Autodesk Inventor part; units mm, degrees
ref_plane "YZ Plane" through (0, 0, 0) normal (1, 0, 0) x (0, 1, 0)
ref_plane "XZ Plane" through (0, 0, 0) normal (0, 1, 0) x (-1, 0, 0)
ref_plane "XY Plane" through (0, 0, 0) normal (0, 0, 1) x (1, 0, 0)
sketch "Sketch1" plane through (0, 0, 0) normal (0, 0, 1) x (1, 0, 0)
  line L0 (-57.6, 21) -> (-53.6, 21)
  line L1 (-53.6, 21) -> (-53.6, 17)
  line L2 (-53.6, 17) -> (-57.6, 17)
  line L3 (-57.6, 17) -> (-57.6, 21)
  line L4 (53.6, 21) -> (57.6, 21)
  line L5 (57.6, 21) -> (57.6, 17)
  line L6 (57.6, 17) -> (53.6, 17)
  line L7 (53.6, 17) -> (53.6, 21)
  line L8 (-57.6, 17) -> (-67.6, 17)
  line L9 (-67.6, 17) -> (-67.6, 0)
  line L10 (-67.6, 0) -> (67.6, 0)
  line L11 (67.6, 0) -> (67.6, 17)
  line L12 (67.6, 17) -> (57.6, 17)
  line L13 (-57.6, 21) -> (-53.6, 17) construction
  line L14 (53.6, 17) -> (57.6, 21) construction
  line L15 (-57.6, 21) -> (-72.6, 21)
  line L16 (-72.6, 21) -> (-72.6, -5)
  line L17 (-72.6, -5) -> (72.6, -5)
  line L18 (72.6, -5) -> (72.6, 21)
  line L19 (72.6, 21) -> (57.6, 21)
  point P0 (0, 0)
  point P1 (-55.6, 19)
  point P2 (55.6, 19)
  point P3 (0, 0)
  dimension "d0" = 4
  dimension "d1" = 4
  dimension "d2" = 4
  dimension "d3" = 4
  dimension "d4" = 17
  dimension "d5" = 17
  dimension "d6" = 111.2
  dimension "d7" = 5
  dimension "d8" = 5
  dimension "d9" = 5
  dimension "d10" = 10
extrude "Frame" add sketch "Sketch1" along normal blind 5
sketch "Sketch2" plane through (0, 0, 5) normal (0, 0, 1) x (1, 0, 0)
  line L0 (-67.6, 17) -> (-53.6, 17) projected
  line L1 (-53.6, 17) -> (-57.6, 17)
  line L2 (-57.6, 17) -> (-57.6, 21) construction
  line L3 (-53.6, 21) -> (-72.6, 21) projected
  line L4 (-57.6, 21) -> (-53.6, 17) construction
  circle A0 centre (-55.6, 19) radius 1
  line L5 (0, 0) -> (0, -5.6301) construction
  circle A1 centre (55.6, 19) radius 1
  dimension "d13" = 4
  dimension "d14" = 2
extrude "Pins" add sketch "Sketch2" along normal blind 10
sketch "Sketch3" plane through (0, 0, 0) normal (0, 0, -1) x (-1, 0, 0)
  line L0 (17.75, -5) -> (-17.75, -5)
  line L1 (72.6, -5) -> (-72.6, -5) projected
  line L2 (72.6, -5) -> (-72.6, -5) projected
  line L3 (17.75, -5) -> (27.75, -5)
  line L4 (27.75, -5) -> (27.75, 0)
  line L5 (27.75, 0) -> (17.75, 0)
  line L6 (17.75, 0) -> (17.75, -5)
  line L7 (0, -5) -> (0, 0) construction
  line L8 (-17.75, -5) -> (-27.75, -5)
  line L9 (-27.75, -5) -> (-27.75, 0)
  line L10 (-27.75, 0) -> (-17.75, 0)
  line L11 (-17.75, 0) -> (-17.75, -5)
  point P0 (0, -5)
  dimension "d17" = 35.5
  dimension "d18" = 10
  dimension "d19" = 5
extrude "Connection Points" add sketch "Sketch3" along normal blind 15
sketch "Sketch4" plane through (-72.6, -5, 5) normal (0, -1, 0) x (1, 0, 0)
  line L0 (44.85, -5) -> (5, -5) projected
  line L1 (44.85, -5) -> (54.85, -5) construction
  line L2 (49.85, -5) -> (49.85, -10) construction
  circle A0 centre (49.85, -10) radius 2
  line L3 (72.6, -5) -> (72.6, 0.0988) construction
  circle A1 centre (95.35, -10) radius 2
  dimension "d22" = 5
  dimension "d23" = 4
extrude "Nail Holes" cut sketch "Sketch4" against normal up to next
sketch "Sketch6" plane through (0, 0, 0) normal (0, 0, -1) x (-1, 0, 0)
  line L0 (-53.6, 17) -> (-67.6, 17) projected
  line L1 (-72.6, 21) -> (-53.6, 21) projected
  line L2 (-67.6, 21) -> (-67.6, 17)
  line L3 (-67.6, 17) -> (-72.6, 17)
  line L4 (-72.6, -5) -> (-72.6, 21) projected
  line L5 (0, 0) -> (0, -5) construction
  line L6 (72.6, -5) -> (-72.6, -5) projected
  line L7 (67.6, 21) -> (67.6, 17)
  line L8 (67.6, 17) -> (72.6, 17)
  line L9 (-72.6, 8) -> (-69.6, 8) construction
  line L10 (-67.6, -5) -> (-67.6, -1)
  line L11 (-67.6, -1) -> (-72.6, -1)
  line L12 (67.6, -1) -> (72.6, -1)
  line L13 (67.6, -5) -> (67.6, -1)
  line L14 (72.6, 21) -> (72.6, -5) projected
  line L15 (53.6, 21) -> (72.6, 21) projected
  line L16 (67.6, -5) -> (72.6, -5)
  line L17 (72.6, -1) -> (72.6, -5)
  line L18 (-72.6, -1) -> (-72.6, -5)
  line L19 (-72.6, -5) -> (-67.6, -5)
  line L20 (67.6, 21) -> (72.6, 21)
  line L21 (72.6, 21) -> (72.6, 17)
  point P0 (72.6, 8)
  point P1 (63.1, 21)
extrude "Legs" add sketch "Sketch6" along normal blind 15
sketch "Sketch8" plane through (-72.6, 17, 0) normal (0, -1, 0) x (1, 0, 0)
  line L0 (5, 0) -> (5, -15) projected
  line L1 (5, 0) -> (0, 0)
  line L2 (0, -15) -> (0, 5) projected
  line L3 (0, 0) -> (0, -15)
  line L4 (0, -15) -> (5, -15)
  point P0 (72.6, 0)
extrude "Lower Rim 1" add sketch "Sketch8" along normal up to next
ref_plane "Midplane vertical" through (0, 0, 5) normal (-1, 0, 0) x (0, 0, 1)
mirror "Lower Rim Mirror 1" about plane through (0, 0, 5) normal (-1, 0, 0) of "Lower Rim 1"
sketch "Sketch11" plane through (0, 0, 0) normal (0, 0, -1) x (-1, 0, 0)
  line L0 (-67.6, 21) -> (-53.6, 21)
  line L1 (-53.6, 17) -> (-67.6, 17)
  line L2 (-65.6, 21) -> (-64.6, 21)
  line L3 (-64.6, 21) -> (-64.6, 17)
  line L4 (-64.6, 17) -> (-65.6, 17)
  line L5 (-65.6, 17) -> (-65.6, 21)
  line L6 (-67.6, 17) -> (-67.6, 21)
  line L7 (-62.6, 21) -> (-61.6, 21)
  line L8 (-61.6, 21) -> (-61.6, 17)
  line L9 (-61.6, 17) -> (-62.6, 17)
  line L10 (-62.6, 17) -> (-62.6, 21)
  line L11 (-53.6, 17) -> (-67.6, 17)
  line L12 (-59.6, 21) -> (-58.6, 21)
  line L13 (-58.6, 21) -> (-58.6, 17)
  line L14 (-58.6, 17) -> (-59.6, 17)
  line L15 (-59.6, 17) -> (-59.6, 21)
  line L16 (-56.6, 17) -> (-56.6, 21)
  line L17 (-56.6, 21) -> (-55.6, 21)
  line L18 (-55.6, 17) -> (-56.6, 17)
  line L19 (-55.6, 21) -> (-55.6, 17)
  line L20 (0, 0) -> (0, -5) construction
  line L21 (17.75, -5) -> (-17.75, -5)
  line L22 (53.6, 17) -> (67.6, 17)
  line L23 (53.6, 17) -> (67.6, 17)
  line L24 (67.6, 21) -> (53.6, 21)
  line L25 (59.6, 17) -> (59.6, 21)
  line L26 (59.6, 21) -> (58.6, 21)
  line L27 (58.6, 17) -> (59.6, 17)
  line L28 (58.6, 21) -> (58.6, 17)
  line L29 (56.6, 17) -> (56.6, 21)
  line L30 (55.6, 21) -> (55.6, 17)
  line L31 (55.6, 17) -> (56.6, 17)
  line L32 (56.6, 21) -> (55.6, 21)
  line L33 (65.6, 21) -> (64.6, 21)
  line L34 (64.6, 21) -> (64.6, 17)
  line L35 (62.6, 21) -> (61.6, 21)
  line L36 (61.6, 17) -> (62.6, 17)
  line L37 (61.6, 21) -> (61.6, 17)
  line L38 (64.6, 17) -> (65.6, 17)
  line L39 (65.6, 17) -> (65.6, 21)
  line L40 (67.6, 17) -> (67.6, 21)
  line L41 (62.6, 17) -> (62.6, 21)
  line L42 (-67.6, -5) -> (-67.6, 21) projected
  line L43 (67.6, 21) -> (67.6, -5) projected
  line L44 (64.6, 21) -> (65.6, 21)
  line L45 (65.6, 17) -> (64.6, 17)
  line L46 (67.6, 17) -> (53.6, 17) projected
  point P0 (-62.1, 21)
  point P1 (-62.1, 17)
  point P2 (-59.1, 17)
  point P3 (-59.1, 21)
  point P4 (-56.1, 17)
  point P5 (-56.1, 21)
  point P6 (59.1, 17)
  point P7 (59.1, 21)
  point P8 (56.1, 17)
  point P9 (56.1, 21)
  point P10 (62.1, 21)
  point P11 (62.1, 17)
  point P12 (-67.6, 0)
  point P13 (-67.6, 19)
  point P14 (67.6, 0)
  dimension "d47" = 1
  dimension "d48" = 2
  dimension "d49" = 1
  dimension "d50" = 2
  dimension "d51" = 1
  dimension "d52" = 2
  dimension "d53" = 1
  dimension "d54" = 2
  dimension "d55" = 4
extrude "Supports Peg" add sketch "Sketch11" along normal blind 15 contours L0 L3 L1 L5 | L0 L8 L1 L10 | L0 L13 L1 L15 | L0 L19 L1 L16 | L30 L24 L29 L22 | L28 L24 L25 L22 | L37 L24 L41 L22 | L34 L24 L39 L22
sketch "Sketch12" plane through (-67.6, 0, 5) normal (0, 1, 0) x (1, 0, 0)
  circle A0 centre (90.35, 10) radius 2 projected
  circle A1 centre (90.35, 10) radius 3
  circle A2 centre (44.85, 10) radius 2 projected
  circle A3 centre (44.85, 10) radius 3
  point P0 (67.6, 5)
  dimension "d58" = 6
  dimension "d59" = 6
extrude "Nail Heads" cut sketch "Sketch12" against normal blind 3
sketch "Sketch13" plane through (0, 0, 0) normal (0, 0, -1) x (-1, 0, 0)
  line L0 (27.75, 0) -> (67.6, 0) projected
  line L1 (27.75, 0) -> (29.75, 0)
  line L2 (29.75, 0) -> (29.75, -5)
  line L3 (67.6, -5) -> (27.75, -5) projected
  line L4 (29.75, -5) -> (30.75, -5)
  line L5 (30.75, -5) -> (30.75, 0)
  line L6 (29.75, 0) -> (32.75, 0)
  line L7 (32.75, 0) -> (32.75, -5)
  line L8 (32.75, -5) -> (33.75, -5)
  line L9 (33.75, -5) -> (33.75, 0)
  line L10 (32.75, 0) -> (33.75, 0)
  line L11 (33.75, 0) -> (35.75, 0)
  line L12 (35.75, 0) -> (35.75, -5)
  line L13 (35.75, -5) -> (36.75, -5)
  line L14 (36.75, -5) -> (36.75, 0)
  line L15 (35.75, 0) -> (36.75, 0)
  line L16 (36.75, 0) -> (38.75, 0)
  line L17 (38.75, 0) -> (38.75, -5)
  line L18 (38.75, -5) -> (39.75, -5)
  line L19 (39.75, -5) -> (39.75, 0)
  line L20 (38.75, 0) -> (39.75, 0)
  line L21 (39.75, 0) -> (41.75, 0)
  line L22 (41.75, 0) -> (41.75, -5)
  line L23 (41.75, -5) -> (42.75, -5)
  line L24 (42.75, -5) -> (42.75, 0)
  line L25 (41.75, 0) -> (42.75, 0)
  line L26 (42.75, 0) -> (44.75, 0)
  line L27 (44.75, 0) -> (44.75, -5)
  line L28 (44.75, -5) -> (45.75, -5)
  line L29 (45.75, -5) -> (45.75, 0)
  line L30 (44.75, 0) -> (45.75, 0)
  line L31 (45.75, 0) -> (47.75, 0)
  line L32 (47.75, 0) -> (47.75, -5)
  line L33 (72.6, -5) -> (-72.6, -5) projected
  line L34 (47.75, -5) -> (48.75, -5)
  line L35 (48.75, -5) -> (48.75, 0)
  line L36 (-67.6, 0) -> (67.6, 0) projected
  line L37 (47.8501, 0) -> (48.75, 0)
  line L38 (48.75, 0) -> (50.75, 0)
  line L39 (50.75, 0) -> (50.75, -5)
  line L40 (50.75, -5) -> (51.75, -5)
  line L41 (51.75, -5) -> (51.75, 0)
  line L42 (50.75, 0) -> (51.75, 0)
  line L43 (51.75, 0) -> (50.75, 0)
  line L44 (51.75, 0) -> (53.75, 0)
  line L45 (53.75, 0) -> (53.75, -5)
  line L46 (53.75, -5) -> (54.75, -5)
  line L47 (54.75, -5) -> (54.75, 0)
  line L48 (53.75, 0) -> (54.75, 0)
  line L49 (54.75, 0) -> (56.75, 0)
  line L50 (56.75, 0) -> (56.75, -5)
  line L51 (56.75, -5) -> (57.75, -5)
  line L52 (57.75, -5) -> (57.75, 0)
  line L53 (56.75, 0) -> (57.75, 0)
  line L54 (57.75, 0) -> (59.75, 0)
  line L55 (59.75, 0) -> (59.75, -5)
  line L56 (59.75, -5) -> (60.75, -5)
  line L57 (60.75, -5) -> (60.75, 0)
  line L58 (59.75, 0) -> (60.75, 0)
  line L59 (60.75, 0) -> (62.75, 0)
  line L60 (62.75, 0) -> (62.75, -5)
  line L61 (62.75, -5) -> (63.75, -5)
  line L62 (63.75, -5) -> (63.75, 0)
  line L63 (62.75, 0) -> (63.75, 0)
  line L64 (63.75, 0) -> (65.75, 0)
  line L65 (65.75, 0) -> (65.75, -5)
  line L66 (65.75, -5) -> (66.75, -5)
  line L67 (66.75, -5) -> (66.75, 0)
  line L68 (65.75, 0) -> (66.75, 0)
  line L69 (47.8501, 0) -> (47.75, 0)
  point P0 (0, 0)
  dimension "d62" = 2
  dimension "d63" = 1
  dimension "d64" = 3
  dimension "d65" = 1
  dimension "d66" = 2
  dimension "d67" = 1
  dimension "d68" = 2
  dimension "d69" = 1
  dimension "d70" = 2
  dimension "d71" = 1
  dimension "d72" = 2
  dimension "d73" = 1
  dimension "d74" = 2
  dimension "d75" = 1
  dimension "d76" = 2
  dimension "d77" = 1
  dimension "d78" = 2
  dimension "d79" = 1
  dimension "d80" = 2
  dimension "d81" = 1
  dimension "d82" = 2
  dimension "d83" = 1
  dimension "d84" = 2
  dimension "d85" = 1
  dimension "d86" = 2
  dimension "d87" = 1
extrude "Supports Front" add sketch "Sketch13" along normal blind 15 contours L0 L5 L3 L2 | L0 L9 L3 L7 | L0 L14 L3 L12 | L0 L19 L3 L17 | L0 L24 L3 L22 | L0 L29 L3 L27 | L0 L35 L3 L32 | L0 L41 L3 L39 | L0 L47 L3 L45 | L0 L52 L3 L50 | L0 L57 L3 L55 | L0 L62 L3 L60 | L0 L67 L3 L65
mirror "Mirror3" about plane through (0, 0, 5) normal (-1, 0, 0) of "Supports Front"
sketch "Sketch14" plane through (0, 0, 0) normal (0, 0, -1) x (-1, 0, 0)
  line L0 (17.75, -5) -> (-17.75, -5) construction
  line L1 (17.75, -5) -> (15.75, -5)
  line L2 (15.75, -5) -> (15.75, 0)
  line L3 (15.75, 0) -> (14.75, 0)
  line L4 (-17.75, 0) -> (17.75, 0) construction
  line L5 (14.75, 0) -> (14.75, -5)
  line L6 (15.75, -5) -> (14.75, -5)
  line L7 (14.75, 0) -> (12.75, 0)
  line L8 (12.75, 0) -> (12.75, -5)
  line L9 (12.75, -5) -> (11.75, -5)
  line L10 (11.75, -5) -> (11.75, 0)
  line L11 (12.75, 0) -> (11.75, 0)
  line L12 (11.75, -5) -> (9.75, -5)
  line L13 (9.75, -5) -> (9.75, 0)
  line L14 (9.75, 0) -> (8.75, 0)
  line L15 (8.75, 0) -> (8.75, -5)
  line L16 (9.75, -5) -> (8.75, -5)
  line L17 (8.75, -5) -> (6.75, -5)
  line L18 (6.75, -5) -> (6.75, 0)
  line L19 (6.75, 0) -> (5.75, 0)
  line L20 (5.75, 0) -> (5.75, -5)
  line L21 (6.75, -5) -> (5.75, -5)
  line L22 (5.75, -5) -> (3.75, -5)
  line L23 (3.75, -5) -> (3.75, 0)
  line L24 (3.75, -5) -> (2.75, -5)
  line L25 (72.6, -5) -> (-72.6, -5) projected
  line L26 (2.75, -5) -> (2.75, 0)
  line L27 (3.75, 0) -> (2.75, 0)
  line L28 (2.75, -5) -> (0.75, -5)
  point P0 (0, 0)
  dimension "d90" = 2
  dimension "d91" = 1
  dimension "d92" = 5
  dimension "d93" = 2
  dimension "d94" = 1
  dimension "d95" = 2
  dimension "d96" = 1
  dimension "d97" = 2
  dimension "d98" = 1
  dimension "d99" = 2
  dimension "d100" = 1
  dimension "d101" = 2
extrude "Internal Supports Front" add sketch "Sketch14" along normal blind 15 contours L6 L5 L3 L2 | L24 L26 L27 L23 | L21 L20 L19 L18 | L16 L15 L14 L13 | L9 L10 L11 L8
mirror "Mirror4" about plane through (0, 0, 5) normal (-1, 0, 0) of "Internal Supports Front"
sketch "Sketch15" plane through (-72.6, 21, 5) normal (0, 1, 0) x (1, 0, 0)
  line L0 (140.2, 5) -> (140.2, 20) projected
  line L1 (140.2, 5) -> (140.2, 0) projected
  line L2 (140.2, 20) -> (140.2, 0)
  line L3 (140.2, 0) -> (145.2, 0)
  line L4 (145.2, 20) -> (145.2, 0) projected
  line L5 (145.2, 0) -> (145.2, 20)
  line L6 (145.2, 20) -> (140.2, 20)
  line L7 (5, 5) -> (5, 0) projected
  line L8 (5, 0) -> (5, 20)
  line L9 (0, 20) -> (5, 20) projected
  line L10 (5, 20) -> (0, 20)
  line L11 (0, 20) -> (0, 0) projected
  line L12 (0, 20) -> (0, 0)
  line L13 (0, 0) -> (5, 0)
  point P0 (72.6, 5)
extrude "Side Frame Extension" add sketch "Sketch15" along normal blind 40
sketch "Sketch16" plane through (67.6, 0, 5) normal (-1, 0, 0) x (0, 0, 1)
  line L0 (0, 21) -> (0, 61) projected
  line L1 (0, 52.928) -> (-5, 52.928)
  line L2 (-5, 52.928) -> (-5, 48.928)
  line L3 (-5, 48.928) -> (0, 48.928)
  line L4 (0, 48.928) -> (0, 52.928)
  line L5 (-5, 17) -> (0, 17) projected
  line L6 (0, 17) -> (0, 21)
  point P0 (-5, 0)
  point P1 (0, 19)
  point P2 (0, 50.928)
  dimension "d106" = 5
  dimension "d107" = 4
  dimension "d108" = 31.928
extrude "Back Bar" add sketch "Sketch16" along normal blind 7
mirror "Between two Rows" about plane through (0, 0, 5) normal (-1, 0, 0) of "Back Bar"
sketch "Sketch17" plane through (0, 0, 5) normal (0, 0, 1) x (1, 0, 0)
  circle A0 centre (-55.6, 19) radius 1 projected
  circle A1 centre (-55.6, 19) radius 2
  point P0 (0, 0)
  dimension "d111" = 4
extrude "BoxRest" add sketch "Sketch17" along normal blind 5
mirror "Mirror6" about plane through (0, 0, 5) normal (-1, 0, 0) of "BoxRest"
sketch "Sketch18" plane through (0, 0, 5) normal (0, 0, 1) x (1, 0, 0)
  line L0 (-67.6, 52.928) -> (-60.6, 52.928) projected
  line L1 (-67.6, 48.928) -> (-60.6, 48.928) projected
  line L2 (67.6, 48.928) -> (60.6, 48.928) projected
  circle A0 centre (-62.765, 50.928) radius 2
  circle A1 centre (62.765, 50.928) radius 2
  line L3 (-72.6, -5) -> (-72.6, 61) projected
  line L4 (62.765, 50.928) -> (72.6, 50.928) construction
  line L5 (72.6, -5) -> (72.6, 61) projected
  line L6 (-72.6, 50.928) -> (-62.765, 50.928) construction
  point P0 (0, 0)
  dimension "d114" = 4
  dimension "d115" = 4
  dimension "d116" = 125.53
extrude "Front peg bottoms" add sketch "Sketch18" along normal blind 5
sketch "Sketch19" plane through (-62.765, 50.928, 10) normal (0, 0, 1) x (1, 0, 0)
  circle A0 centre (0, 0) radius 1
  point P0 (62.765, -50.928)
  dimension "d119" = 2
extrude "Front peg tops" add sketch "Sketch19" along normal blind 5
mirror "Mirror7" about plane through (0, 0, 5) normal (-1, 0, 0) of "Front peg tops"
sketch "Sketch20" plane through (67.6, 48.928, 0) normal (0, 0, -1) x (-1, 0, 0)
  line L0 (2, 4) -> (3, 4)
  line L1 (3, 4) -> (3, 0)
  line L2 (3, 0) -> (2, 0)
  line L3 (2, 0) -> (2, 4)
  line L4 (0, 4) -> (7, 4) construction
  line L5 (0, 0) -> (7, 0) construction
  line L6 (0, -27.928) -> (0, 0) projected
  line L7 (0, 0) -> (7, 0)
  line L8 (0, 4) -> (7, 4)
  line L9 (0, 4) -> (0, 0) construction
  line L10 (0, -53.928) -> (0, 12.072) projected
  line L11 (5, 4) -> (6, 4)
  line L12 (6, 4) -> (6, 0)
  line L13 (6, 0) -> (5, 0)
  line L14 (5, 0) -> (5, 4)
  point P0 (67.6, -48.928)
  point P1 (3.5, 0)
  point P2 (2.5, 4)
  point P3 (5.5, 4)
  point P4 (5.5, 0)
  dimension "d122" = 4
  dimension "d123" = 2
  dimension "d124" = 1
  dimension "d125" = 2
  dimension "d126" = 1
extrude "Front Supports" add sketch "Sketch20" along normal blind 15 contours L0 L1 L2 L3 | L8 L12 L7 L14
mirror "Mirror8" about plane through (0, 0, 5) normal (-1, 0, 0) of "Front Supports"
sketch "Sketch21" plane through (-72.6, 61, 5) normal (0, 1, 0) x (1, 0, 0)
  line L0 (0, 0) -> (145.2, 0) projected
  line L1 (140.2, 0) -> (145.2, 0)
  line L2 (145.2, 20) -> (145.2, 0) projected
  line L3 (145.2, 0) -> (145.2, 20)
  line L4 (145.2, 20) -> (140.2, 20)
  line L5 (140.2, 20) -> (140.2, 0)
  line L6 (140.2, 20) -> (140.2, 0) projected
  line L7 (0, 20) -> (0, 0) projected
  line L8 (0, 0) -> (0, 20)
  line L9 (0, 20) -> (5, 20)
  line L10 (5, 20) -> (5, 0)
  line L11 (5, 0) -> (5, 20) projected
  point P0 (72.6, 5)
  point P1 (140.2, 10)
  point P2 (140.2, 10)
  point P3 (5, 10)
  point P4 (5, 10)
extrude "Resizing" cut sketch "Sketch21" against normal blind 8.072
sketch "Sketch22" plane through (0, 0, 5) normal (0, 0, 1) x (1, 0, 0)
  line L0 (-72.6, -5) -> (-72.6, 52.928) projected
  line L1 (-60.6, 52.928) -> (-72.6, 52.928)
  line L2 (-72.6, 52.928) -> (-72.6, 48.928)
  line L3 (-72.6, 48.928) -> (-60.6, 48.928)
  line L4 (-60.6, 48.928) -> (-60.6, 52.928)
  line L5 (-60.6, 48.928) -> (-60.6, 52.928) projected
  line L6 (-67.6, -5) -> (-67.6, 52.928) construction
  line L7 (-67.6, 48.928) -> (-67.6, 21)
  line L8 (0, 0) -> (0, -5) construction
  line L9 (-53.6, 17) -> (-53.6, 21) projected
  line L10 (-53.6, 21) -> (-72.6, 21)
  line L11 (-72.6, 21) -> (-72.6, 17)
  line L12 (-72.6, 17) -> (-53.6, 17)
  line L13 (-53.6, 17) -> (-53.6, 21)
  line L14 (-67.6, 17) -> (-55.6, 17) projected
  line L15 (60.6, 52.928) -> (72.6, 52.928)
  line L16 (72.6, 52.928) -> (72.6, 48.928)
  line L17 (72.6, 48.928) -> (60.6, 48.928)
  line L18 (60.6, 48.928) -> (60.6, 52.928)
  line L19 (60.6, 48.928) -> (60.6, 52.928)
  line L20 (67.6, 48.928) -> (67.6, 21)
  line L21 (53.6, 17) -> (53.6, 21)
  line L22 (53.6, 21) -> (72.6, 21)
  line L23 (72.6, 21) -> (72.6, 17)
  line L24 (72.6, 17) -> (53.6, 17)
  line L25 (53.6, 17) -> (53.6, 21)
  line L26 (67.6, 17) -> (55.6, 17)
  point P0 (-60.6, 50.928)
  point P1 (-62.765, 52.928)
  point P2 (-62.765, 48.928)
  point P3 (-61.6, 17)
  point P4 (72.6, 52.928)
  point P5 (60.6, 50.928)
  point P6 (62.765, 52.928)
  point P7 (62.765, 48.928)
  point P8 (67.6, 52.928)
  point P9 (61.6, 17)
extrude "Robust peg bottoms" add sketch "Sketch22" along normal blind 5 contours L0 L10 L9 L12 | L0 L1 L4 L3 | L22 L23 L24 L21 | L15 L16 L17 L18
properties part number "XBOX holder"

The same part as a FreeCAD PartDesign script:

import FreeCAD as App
import Part
import Sketcher

V = App.Vector


def add_polygon(sketch, points):
    """Adds a closed chain of lines whose ends are joined by coincident constraints."""
    first, n = sketch.GeometryCount, len(points)
    for a, b in zip(points, points[1:] + points[:1]):
        sketch.addGeometry(Part.LineSegment(App.Vector(*a, 0), App.Vector(*b, 0)), False)
    for i in range(n):
        sketch.addConstraint(Sketcher.Constraint("Coincident", first + i, 2, first + (i + 1) % n, 1))

doc = App.newDocument("Part")
body = doc.addObject("PartDesign::Body", "Body")

sketch1 = doc.addObject("Sketcher::SketchObject", "Sketch")
body.addObject(sketch1)
sketch1.AttachmentSupport = (doc.XY_Plane, [""])
sketch1.MapMode = "FlatFace"
add_polygon(sketch1, [(-53.6, 21), (-72.6, 21), (-72.6, -5), (72.6, -5), (72.6, 21), (53.6, 21), (53.6, 17), (67.6, 17), (67.6, 0), (-67.6, 0), (-67.6, 17), (-53.6, 17)])
sketch1.addConstraint([
    Sketcher.Constraint("Horizontal", 0),
    Sketcher.Constraint("Vertical", 1),
    Sketcher.Constraint("Horizontal", 2),
    Sketcher.Constraint("Vertical", 3),
    Sketcher.Constraint("Horizontal", 4),
    Sketcher.Constraint("Vertical", 5),
    Sketcher.Constraint("Horizontal", 6),
    Sketcher.Constraint("Vertical", 7),
    Sketcher.Constraint("Horizontal", 8),
    Sketcher.Constraint("Vertical", 9),
    Sketcher.Constraint("Horizontal", 10),
    Sketcher.Constraint("Vertical", 11),
    Sketcher.Constraint("Symmetric", 7, 2, 8, 2, -1, 1),
    Sketcher.Constraint("Symmetric", 0, 2, 3, 2, -2),
    Sketcher.Constraint("Symmetric", 5, 2, 10, 2, -2),
    Sketcher.Constraint("DistanceY", 5, 2, 5, 1, 4.0),
    Sketcher.Constraint("DistanceY", 7, 2, 7, 1, 17.0),
    Sketcher.Constraint("DistanceY", 1, 2, -1, 1, 5.0),
    Sketcher.Constraint("DistanceX", 6, 2, 3, 2, 5.0),
    Sketcher.Constraint("DistanceX", 0, 2, 0, 1, 19.0),
    Sketcher.Constraint("DistanceX", 2, 1, 2, 2, 145.2),
])
pad1 = doc.addObject("PartDesign::Pad", "Pad")
body.addObject(pad1)
pad1.Profile = sketch1
pad1.Length = 5

sketch2 = doc.addObject("Sketcher::SketchObject", "Sketch001")
body.addObject(sketch2)
sketch2.AttachmentSupport = (doc.XY_Plane, [""])
sketch2.MapMode = "FlatFace"
sketch2.AttachmentOffset = App.Placement(V(0, 0, 5), App.Rotation())
sketch2.addGeometry([
    Part.Circle(V(-55.6, 19, 0), V(0, 0, 1), 1),
    Part.Circle(V(55.6, 19, 0), V(0, 0, 1), 1),
], False)
sketch2.addConstraint([
    Sketcher.Constraint("Equal", 0, 1),
    Sketcher.Constraint("Symmetric", 0, 3, 1, 3, -2),
    Sketcher.Constraint("Diameter", 0, 2.0),
    Sketcher.Constraint("DistanceY", -1, 1, 0, 3, 19.0),
    Sketcher.Constraint("DistanceX", 0, 3, -1, 1, 55.6),
])
pad2 = doc.addObject("PartDesign::Pad", "Pad001")
body.addObject(pad2)
pad2.Profile = sketch2
pad2.Length = 10

sketch3 = doc.addObject("Sketcher::SketchObject", "Sketch002")
body.addObject(sketch3)
sketch3.AttachmentSupport = (doc.XY_Plane, [""])
sketch3.MapMode = "FlatFace"
add_polygon(sketch3, [(28, -5), (18, -5), (18, 0), (28, 0)])
add_polygon(sketch3, [(-18, 0), (-18, -5), (-28, -5), (-28, 0)])
sketch3.addConstraint([
    Sketcher.Constraint("Horizontal", 0),
    Sketcher.Constraint("Vertical", 1),
    Sketcher.Constraint("Horizontal", 2),
    Sketcher.Constraint("Vertical", 3),
    Sketcher.Constraint("Vertical", 4),
    Sketcher.Constraint("Horizontal", 5),
    Sketcher.Constraint("Vertical", 6),
    Sketcher.Constraint("Horizontal", 7),
    Sketcher.Constraint("Symmetric", 2, 2, 6, 2, -1, 1),
    Sketcher.Constraint("Symmetric", 0, 2, 4, 2, -2),
    Sketcher.Constraint("PointOnObject", 1, 2, -1),
    Sketcher.Constraint("DistanceX", 0, 2, 0, 1, 10.0),
    Sketcher.Constraint("DistanceY", 1, 1, 1, 2, 5.0),
    Sketcher.Constraint("DistanceX", 4, 2, 0, 2, 35.5),
])
pad3 = doc.addObject("PartDesign::Pad", "Pad002")
body.addObject(pad3)
pad3.Profile = sketch3
pad3.Length = 15
pad3.Reversed = True

sketch4 = doc.addObject("Sketcher::SketchObject", "Sketch003")
body.addObject(sketch4)
sketch4.AttachmentSupport = (doc.XZ_Plane, [""])
sketch4.MapMode = "FlatFace"
sketch4.AttachmentOffset = App.Placement(V(0, 0, 5), App.Rotation())
sketch4.addGeometry([
    Part.Circle(V(-22.8, -5, 0), V(0, 0, 1), 2),
    Part.Circle(V(22.8, -5, 0), V(0, 0, 1), 2),
], False)
sketch4.addConstraint([
    Sketcher.Constraint("Equal", 0, 1),
    Sketcher.Constraint("Symmetric", 0, 3, 1, 3, -2),
    Sketcher.Constraint("Diameter", 0, 4.0),
    Sketcher.Constraint("DistanceY", 0, 3, -1, 1, 5.0),
    Sketcher.Constraint("DistanceX", 0, 3, 1, 3, 45.5),
])
pocket1 = doc.addObject("PartDesign::Pocket", "Pocket")
body.addObject(pocket1)
pocket1.Profile = sketch4
pocket1.Length = 5

sketch5 = doc.addObject("Sketcher::SketchObject", "Sketch004")
body.addObject(sketch5)
sketch5.AttachmentSupport = (doc.XY_Plane, [""])
sketch5.MapMode = "FlatFace"
add_polygon(sketch5, [(-67.6, 17), (-72.6, 17), (-72.6, 21), (-67.6, 21)])
add_polygon(sketch5, [(-67.6, -1), (-67.6, -5), (-72.6, -5), (-72.6, -1)])
add_polygon(sketch5, [(67.6, -1), (72.6, -1), (72.6, -5), (67.6, -5)])
add_polygon(sketch5, [(67.6, 21), (72.6, 21), (72.6, 17), (67.6, 17)])
sketch5.addConstraint([
    Sketcher.Constraint("Horizontal", 0),
    Sketcher.Constraint("Vertical", 1),
    Sketcher.Constraint("Horizontal", 2),
    Sketcher.Constraint("Vertical", 3),
    Sketcher.Constraint("Vertical", 4),
    Sketcher.Constraint("Horizontal", 5),
    Sketcher.Constraint("Vertical", 6),
    Sketcher.Constraint("Horizontal", 7),
    Sketcher.Constraint("Horizontal", 8),
    Sketcher.Constraint("Vertical", 9),
    Sketcher.Constraint("Horizontal", 10),
    Sketcher.Constraint("Vertical", 11),
    Sketcher.Constraint("Horizontal", 12),
    Sketcher.Constraint("Vertical", 13),
    Sketcher.Constraint("Horizontal", 14),
    Sketcher.Constraint("Vertical", 15),
    Sketcher.Constraint("Symmetric", 6, 2, 8, 2, -2),
    Sketcher.Constraint("Symmetric", 4, 2, 10, 2, -2),
    Sketcher.Constraint("Symmetric", 1, 2, 12, 2, -2),
    Sketcher.Constraint("Symmetric", 3, 2, 14, 2, -2),
    Sketcher.Constraint("Vertical", 3, 2, 4, 2),
    Sketcher.Constraint("Vertical", 1, 2, 5, 2),
    Sketcher.Constraint("Equal", 3, 4),
    Sketcher.Constraint("DistanceX", 0, 2, 0, 1, 5.0),
    Sketcher.Constraint("DistanceY", 1, 1, 1, 2, 4.0),
    Sketcher.Constraint("DistanceY", -1, 1, 0, 2, 17.0),
    Sketcher.Constraint("DistanceY", 4, 2, -1, 1, 5.0),
    Sketcher.Constraint("DistanceX", 0, 2, -1, 1, 72.6),
])
pad4 = doc.addObject("PartDesign::Pad", "Pad003")
body.addObject(pad4)
pad4.Profile = sketch5
pad4.Length = 15
pad4.Reversed = True

sketch6 = doc.addObject("Sketcher::SketchObject", "Sketch005")
body.addObject(sketch6)
sketch6.AttachmentSupport = (doc.XZ_Plane, [""])
sketch6.MapMode = "FlatFace"
sketch6.AttachmentOffset = App.Placement(V(0, 0, -17), App.Rotation())
add_polygon(sketch6, [(-68, -15), (-68, 0), (-73, 0), (-73, -15)])
sketch6.addConstraint([
    Sketcher.Constraint("Vertical", 0),
    Sketcher.Constraint("Horizontal", 1),
    Sketcher.Constraint("Vertical", 2),
    Sketcher.Constraint("Horizontal", 3),
    Sketcher.Constraint("PointOnObject", 0, 2, -1),
    Sketcher.Constraint("DistanceX", 1, 2, 1, 1, 5.0),
    Sketcher.Constraint("DistanceY", 0, 1, 0, 2, 15.0),
    Sketcher.Constraint("DistanceX", 0, 2, -1, 1, 67.6),
])
pad5 = doc.addObject("PartDesign::Pad", "Pad004")
body.addObject(pad5)
pad5.Profile = sketch6
pad5.Type = "UpToFirst"
doc.recompute()

mirrored = doc.addObject("PartDesign::Mirrored", "Mirrored")
body.addObject(mirrored)
mirrored.Originals = [pad5]
mirrored.MirrorPlane = (doc.YZ_Plane, [""])
body.Tip = mirrored

sketch7 = doc.addObject("Sketcher::SketchObject", "Sketch006")
body.addObject(sketch7)
sketch7.AttachmentSupport = (doc.XY_Plane, [""])
sketch7.MapMode = "FlatFace"
add_polygon(sketch7, [(64.6, 21), (65.6, 21), (65.6, 17), (64.6, 17)])
add_polygon(sketch7, [(61.6, 21), (62.6, 21), (62.6, 17), (61.6, 17)])
add_polygon(sketch7, [(58.6, 21), (59.6, 21), (59.6, 17), (58.6, 17)])
add_polygon(sketch7, [(55.6, 21), (56.6, 21), (56.6, 17), (55.6, 17)])
add_polygon(sketch7, [(-55.6, 21), (-55.6, 17), (-56.6, 17), (-56.6, 21)])
add_polygon(sketch7, [(-58.6, 21), (-58.6, 17), (-59.6, 17), (-59.6, 21)])
add_polygon(sketch7, [(-61.6, 21), (-61.6, 17), (-62.6, 17), (-62.6, 21)])
add_polygon(sketch7, [(-64.6, 21), (-64.6, 17), (-65.6, 17), (-65.6, 21)])
sketch7.addConstraint([
    Sketcher.Constraint("Horizontal", 0),
    Sketcher.Constraint("Vertical", 1),
    Sketcher.Constraint("Horizontal", 2),
    Sketcher.Constraint("Vertical", 3),
    Sketcher.Constraint("Horizontal", 4),
    Sketcher.Constraint("Vertical", 5),
    Sketcher.Constraint("Horizontal", 6),
    Sketcher.Constraint("Vertical", 7),
    Sketcher.Constraint("Horizontal", 8),
    Sketcher.Constraint("Vertical", 9),
    Sketcher.Constraint("Horizontal", 10),
    Sketcher.Constraint("Vertical", 11),
    Sketcher.Constraint("Horizontal", 12),
    Sketcher.Constraint("Vertical", 13),
    Sketcher.Constraint("Horizontal", 14),
    Sketcher.Constraint("Vertical", 15),
    Sketcher.Constraint("Vertical", 16),
    Sketcher.Constraint("Horizontal", 17),
    Sketcher.Constraint("Vertical", 18),
    Sketcher.Constraint("Horizontal", 19),
    Sketcher.Constraint("Vertical", 20),
    Sketcher.Constraint("Horizontal", 21),
    Sketcher.Constraint("Vertical", 22),
    Sketcher.Constraint("Horizontal", 23),
    Sketcher.Constraint("Vertical", 24),
    Sketcher.Constraint("Horizontal", 25),
    Sketcher.Constraint("Vertical", 26),
    Sketcher.Constraint("Horizontal", 27),
    Sketcher.Constraint("Vertical", 28),
    Sketcher.Constraint("Horizontal", 29),
    Sketcher.Constraint("Vertical", 30),
    Sketcher.Constraint("Horizontal", 31),
    Sketcher.Constraint("Symmetric", 14, 2, 16, 2, -2),
    Sketcher.Constraint("Symmetric", 12, 2, 18, 2, -2),
    Sketcher.Constraint("Symmetric", 10, 2, 20, 2, -2),
    Sketcher.Constraint("Symmetric", 8, 2, 22, 2, -2),
    Sketcher.Constraint("Symmetric", 6, 2, 24, 2, -2),
    Sketcher.Constraint("Symmetric", 4, 2, 26, 2, -2),
    Sketcher.Constraint("Symmetric", 2, 2, 28, 2, -2),
    Sketcher.Constraint("Symmetric", 0, 2, 30, 2, -2),
    Sketcher.Constraint("Horizontal", 3, 2, 4, 2),
    Sketcher.Constraint("Horizontal", 2, 2, 5, 2),
    Sketcher.Constraint("Horizontal", 7, 2, 8, 2),
    Sketcher.Constraint("Horizontal", 6, 2, 9, 2),
    Sketcher.Constraint("Horizontal", 11, 2, 12, 2),
    Sketcher.Constraint("Horizontal", 10, 2, 13, 2),
    Sketcher.Constraint("Equal", 2, 4),
    Sketcher.Constraint("Equal", 6, 8),
    Sketcher.Constraint("Equal", 10, 12),
    Sketcher.Constraint("DistanceX", 0, 1, 0, 2, 1.0),
    Sketcher.Constraint("DistanceY", 1, 2, 1, 1, 4.0),
    Sketcher.Constraint("DistanceX", 4, 2, 3, 2, 2.0),
    Sketcher.Constraint("DistanceX", 8, 2, 7, 2, 2.0),
    Sketcher.Constraint("DistanceX", 12, 2, 11, 2, 2.0),
    Sketcher.Constraint("DistanceY", -1, 1, 0, 2, 21.0),
    Sketcher.Constraint("DistanceX", -1, 1, 0, 2, 65.6),
])
pad6 = doc.addObject("PartDesign::Pad", "Pad005")
body.addObject(pad6)
pad6.Profile = sketch7
pad6.Length = 15
pad6.Reversed = True

sketch8 = doc.addObject("Sketcher::SketchObject", "Sketch007")
body.addObject(sketch8)
sketch8.AttachmentSupport = (doc.XZ_Plane, [""])
sketch8.MapMode = "FlatFace"
sketch8.addGeometry([
    Part.Circle(V(22.8, -5, 0), V(0, 0, 1), 3),
    Part.Circle(V(22.8, -5, 0), V(0, 0, 1), 2),
    Part.Circle(V(-22.8, -5, 0), V(0, 0, 1), 3),
    Part.Circle(V(-22.8, -5, 0), V(0, 0, 1), 2),
], False)
sketch8.addConstraint([
    Sketcher.Constraint("Coincident", 1, 3, 0, 3),
    Sketcher.Constraint("Coincident", 3, 3, 2, 3),
    Sketcher.Constraint("Equal", 0, 2),
    Sketcher.Constraint("Equal", 1, 3),
    Sketcher.Constraint("Symmetric", 0, 3, 2, 3, -2),
    Sketcher.Constraint("Diameter", 0, 6.0),
    Sketcher.Constraint("Diameter", 1, 4.0),
    Sketcher.Constraint("DistanceY", 0, 3, -1, 1, 5.0),
    Sketcher.Constraint("DistanceX", 2, 3, 0, 3, 45.5),
])
pocket2 = doc.addObject("PartDesign::Pocket", "Pocket001")
body.addObject(pocket2)
pocket2.Profile = sketch8
pocket2.Length = 3
pocket2.Reversed = True

sketch9 = doc.addObject("Sketcher::SketchObject", "Sketch008")
body.addObject(sketch9)
sketch9.AttachmentSupport = (doc.XY_Plane, [""])
sketch9.MapMode = "FlatFace"
add_polygon(sketch9, [(-30.8, 0), (-29.8, 0), (-29.8, -5), (-30.8, -5)])
add_polygon(sketch9, [(-33.8, 0), (-32.8, 0), (-32.8, -5), (-33.8, -5)])
add_polygon(sketch9, [(-36.8, 0), (-35.8, 0), (-35.8, -5), (-36.8, -5)])
add_polygon(sketch9, [(-39.8, 0), (-38.8, 0), (-38.8, -5), (-39.8, -5)])
add_polygon(sketch9, [(-42.8, 0), (-41.8, 0), (-41.8, -5), (-42.8, -5)])
add_polygon(sketch9, [(-45.8, 0), (-44.8, 0), (-44.8, -5), (-45.8, -5)])
add_polygon(sketch9, [(-48.8, 0), (-47.8, 0), (-47.8, -5), (-48.8, -5)])
add_polygon(sketch9, [(-51.8, 0), (-50.8, 0), (-50.8, -5), (-51.8, -5)])
add_polygon(sketch9, [(-54.8, 0), (-53.8, 0), (-53.8, -5), (-54.8, -5)])
add_polygon(sketch9, [(-57.8, 0), (-56.8, 0), (-56.8, -5), (-57.8, -5)])
add_polygon(sketch9, [(-60.8, 0), (-59.8, 0), (-59.8, -5), (-60.8, -5)])
add_polygon(sketch9, [(-63.8, 0), (-62.8, 0), (-62.8, -5), (-63.8, -5)])
add_polygon(sketch9, [(-66.8, 0), (-65.8, 0), (-65.8, -5), (-66.8, -5)])
sketch9.addConstraint([
    Sketcher.Constraint("Horizontal", 0),
    Sketcher.Constraint("Vertical", 1),
    Sketcher.Constraint("Horizontal", 2),
    Sketcher.Constraint("Vertical", 3),
    Sketcher.Constraint("Horizontal", 4),
    Sketcher.Constraint("Vertical", 5),
    Sketcher.Constraint("Horizontal", 6),
    Sketcher.Constraint("Vertical", 7),
    Sketcher.Constraint("Horizontal", 8),
    Sketcher.Constraint("Vertical", 9),
    Sketcher.Constraint("Horizontal", 10),
    Sketcher.Constraint("Vertical", 11),
    Sketcher.Constraint("Horizontal", 12),
    Sketcher.Constraint("Vertical", 13),
    Sketcher.Constraint("Horizontal", 14),
    Sketcher.Constraint("Vertical", 15),
    Sketcher.Constraint("Horizontal", 16),
    Sketcher.Constraint("Vertical", 17),
    Sketcher.Constraint("Horizontal", 18),
    Sketcher.Constraint("Vertical", 19),
    Sketcher.Constraint("Horizontal", 20),
    Sketcher.Constraint("Vertical", 21),
    Sketcher.Constraint("Horizontal", 22),
    Sketcher.Constraint("Vertical", 23),
    Sketcher.Constraint("Horizontal", 24),
    Sketcher.Constraint("Vertical", 25),
    Sketcher.Constraint("Horizontal", 26),
    Sketcher.Constraint("Vertical", 27),
    Sketcher.Constraint("Horizontal", 28),
    Sketcher.Constraint("Vertical", 29),
    Sketcher.Constraint("Horizontal", 30),
    Sketcher.Constraint("Vertical", 31),
    Sketcher.Constraint("Horizontal", 32),
    Sketcher.Constraint("Vertical", 33),
    Sketcher.Constraint("Horizontal", 34),
    Sketcher.Constraint("Vertical", 35),
    Sketcher.Constraint("Horizontal", 36),
    Sketcher.Constraint("Vertical", 37),
    Sketcher.Constraint("Horizontal", 38),
    Sketcher.Constraint("Vertical", 39),
    Sketcher.Constraint("Horizontal", 40),
    Sketcher.Constraint("Vertical", 41),
    Sketcher.Constraint("Horizontal", 42),
    Sketcher.Constraint("Vertical", 43),
    Sketcher.Constraint("Horizontal", 44),
    Sketcher.Constraint("Vertical", 45),
    Sketcher.Constraint("Horizontal", 46),
    Sketcher.Constraint("Vertical", 47),
    Sketcher.Constraint("Horizontal", 48),
    Sketcher.Constraint("Vertical", 49),
    Sketcher.Constraint("Horizontal", 50),
    Sketcher.Constraint("Vertical", 51),
    Sketcher.Constraint("PointOnObject", 0, 2, -1),
    Sketcher.Constraint("PointOnObject", 4, 2, -1),
    Sketcher.Constraint("PointOnObject", 8, 2, -1),
    Sketcher.Constraint("PointOnObject", 12, 2, -1),
    Sketcher.Constraint("PointOnObject", 16, 2, -1),
    Sketcher.Constraint("PointOnObject", 20, 2, -1),
    Sketcher.Constraint("PointOnObject", 24, 2, -1),
    Sketcher.Constraint("PointOnObject", 28, 2, -1),
    Sketcher.Constraint("PointOnObject", 32, 2, -1),
    Sketcher.Constraint("PointOnObject", 36, 2, -1),
    Sketcher.Constraint("PointOnObject", 40, 2, -1),
    Sketcher.Constraint("PointOnObject", 44, 2, -1),
    Sketcher.Constraint("PointOnObject", 48, 2, -1),
    Sketcher.Constraint("Horizontal", 2, 2, 5, 2),
    Sketcher.Constraint("Horizontal", 6, 2, 9, 2),
    Sketcher.Constraint("Horizontal", 10, 2, 13, 2),
    Sketcher.Constraint("Horizontal", 14, 2, 17, 2),
    Sketcher.Constraint("Horizontal", 18, 2, 21, 2),
    Sketcher.Constraint("Horizontal", 22, 2, 25, 2),
    Sketcher.Constraint("Horizontal", 26, 2, 29, 2),
    Sketcher.Constraint("Horizontal", 30, 2, 33, 2),
    Sketcher.Constraint("Horizontal", 34, 2, 37, 2),
    Sketcher.Constraint("Horizontal", 38, 2, 41, 2),
    Sketcher.Constraint("Horizontal", 42, 2, 45, 2),
    Sketcher.Constraint("Horizontal", 46, 2, 49, 2),
    Sketcher.Constraint("Equal", 2, 4),
    Sketcher.Constraint("Equal", 6, 8),
    Sketcher.Constraint("Equal", 10, 12),
    Sketcher.Constraint("Equal", 14, 16),
    Sketcher.Constraint("Equal", 18, 20),
    Sketcher.Constraint("Equal", 22, 24),
    Sketcher.Constraint("Equal", 26, 28),
    Sketcher.Constraint("Equal", 30, 32),
    Sketcher.Constraint("Equal", 34, 36),
    Sketcher.Constraint("Equal", 38, 40),
    Sketcher.Constraint("Equal", 42, 44),
    Sketcher.Constraint("Equal", 46, 48),
    Sketcher.Constraint("DistanceX", 0, 1, 0, 2, 1.0),
    Sketcher.Constraint("DistanceX", 4, 2, 3, 2, 2.0),
    Sketcher.Constraint("DistanceX", 8, 2, 7, 2, 2.0),
    Sketcher.Constraint("DistanceX", 12, 2, 11, 2, 2.0),
    Sketcher.Constraint("DistanceX", 16, 2, 15, 2, 2.0),
    Sketcher.Constraint("DistanceX", 20, 2, 19, 2, 2.0),
    Sketcher.Constraint("DistanceX", 24, 2, 23, 2, 2.0),
    Sketcher.Constraint("DistanceX", 28, 2, 27, 2, 2.0),
    Sketcher.Constraint("DistanceX", 32, 2, 31, 2, 2.0),
    Sketcher.Constraint("DistanceX", 36, 2, 35, 2, 2.0),
    Sketcher.Constraint("DistanceX", 40, 2, 39, 2, 2.0),
    Sketcher.Constraint("DistanceX", 44, 2, 43, 2, 2.0),
    Sketcher.Constraint("DistanceX", 48, 2, 47, 2, 2.0),
    Sketcher.Constraint("DistanceY", 1, 2, 1, 1, 5.0),
    Sketcher.Constraint("DistanceX", 0, 2, -1, 1, 29.75),
])
pad7 = doc.addObject("PartDesign::Pad", "Pad006")
body.addObject(pad7)
pad7.Profile = sketch9
pad7.Length = 15
pad7.Reversed = True
doc.recompute()

mirrored2 = doc.addObject("PartDesign::Mirrored", "Mirrored001")
body.addObject(mirrored2)
mirrored2.Originals = [pad7]
mirrored2.MirrorPlane = (doc.YZ_Plane, [""])
body.Tip = mirrored2

sketch10 = doc.addObject("Sketcher::SketchObject", "Sketch009")
body.addObject(sketch10)
sketch10.AttachmentSupport = (doc.XY_Plane, [""])
sketch10.MapMode = "FlatFace"
add_polygon(sketch10, [(-14.8, -5), (-15.8, -5), (-15.8, 0), (-14.8, 0)])
add_polygon(sketch10, [(-2.8, -5), (-3.8, -5), (-3.8, 0), (-2.8, 0)])
add_polygon(sketch10, [(-5.8, -5), (-6.8, -5), (-6.8, 0), (-5.8, 0)])
add_polygon(sketch10, [(-8.8, -5), (-9.8, -5), (-9.8, 0), (-8.8, 0)])
add_polygon(sketch10, [(-11.8, -5), (-12.8, -5), (-12.8, 0), (-11.8, 0)])
sketch10.addConstraint([
    Sketcher.Constraint("Horizontal", 0),
    Sketcher.Constraint("Vertical", 1),
    Sketcher.Constraint("Horizontal", 2),
    Sketcher.Constraint("Vertical", 3),
    Sketcher.Constraint("Horizontal", 4),
    Sketcher.Constraint("Vertical", 5),
    Sketcher.Constraint("Horizontal", 6),
    Sketcher.Constraint("Vertical", 7),
    Sketcher.Constraint("Horizontal", 8),
    Sketcher.Constraint("Vertical", 9),
    Sketcher.Constraint("Horizontal", 10),
    Sketcher.Constraint("Vertical", 11),
    Sketcher.Constraint("Horizontal", 12),
    Sketcher.Constraint("Vertical", 13),
    Sketcher.Constraint("Horizontal", 14),
    Sketcher.Constraint("Vertical", 15),
    Sketcher.Constraint("Horizontal", 16),
    Sketcher.Constraint("Vertical", 17),
    Sketcher.Constraint("Horizontal", 18),
    Sketcher.Constraint("Vertical", 19),
    Sketcher.Constraint("PointOnObject", 1, 2, -1),
    Sketcher.Constraint("PointOnObject", 5, 2, -1),
    Sketcher.Constraint("PointOnObject", 9, 2, -1),
    Sketcher.Constraint("PointOnObject", 13, 2, -1),
    Sketcher.Constraint("PointOnObject", 17, 2, -1),
    Sketcher.Constraint("Horizontal", 3, 2, 4, 2),
    Sketcher.Constraint("Horizontal", 7, 2, 8, 2),
    Sketcher.Constraint("Horizontal", 11, 2, 12, 2),
    Sketcher.Constraint("Horizontal", 15, 2, 16, 2),
    Sketcher.Constraint("Equal", 2, 4),
    Sketcher.Constraint("Equal", 6, 8),
    Sketcher.Constraint("Equal", 10, 12),
    Sketcher.Constraint("Equal", 14, 16),
    Sketcher.Constraint("DistanceX", 0, 2, 0, 1, 1.0),
    Sketcher.Constraint("DistanceY", 1, 1, 1, 2, 5.0),
    Sketcher.Constraint("DistanceX", 10, 2, 5, 2, 2.0),
    Sketcher.Constraint("DistanceX", 3, 2, 12, 2, 5.0),
    Sketcher.Constraint("DistanceX", 14, 2, 9, 2, 2.0),
    Sketcher.Constraint("DistanceX", 3, 2, 16, 2, 2.0),
    Sketcher.Constraint("DistanceX", 0, 2, -1, 1, 15.75),
])
pad8 = doc.addObject("PartDesign::Pad", "Pad007")
body.addObject(pad8)
pad8.Profile = sketch10
pad8.Length = 15
pad8.Reversed = True
doc.recompute()

mirrored3 = doc.addObject("PartDesign::Mirrored", "Mirrored002")
body.addObject(mirrored3)
mirrored3.Originals = [pad8]
mirrored3.MirrorPlane = (doc.YZ_Plane, [""])
body.Tip = mirrored3

sketch11 = doc.addObject("Sketcher::SketchObject", "Sketch010")
body.addObject(sketch11)
sketch11.AttachmentSupport = (doc.XZ_Plane, [""])
sketch11.MapMode = "FlatFace"
sketch11.AttachmentOffset = App.Placement(V(0, 0, -21), App.Rotation())
add_polygon(sketch11, [(68, -15), (68, 5), (73, 5), (73, -15)])
add_polygon(sketch11, [(-68, 5), (-68, -15), (-73, -15), (-73, 5)])
sketch11.addConstraint([
    Sketcher.Constraint("Vertical", 0),
    Sketcher.Constraint("Horizontal", 1),
    Sketcher.Constraint("Vertical", 2),
    Sketcher.Constraint("Horizontal", 3),
    Sketcher.Constraint("Vertical", 4),
    Sketcher.Constraint("Horizontal", 5),
    Sketcher.Constraint("Vertical", 6),
    Sketcher.Constraint("Horizontal", 7),
    Sketcher.Constraint("Symmetric", 3, 2, 4, 2, -2),
    Sketcher.Constraint("Symmetric", 1, 2, 6, 2, -2),
    Sketcher.Constraint("DistanceX", 1, 1, 1, 2, 5.0),
    Sketcher.Constraint("DistanceY", 0, 1, 0, 2, 20.0),
    Sketcher.Constraint("DistanceY", -1, 1, 0, 2, 5.0),
    Sketcher.Constraint("DistanceX", -1, 1, 0, 2, 67.6),
])
pad9 = doc.addObject("PartDesign::Pad", "Pad008")
body.addObject(pad9)
pad9.Profile = sketch11
pad9.Length = 40
pad9.Reversed = True

sketch12 = doc.addObject("Sketcher::SketchObject", "Sketch011")
body.addObject(sketch12)
sketch12.AttachmentSupport = (doc.YZ_Plane, [""])
sketch12.MapMode = "FlatFace"
sketch12.AttachmentOffset = App.Placement(V(0, 0, 67.6), App.Rotation())
add_polygon(sketch12, [(48.9, 0), (48.9, 5), (52.9, 5), (52.9, 0)])
sketch12.addConstraint([
    Sketcher.Constraint("Vertical", 0),
    Sketcher.Constraint("Horizontal", 1),
    Sketcher.Constraint("Vertical", 2),
    Sketcher.Constraint("Horizontal", 3),
    Sketcher.Constraint("PointOnObject", 2, 2, -1),
    Sketcher.Constraint("DistanceX", 1, 1, 1, 2, 4.0),
    Sketcher.Constraint("DistanceY", 0, 1, 0, 2, 5.0),
    Sketcher.Constraint("DistanceX", -1, 1, 0, 2, 48.928),
])
pad10 = doc.addObject("PartDesign::Pad", "Pad009")
body.addObject(pad10)
pad10.Profile = sketch12
pad10.Length = 7
pad10.Reversed = True
doc.recompute()

mirrored4 = doc.addObject("PartDesign::Mirrored", "Mirrored003")
body.addObject(mirrored4)
mirrored4.Originals = [pad10]
mirrored4.MirrorPlane = (doc.YZ_Plane, [""])
body.Tip = mirrored4

sketch13 = doc.addObject("Sketcher::SketchObject", "Sketch012")
body.addObject(sketch13)
sketch13.AttachmentSupport = (doc.XY_Plane, [""])
sketch13.MapMode = "FlatFace"
sketch13.AttachmentOffset = App.Placement(V(0, 0, 5), App.Rotation())
sketch13.addGeometry([
    Part.Circle(V(-55.6, 19, 0), V(0, 0, 1), 2),
    Part.Circle(V(-55.6, 19, 0), V(0, 0, 1), 1),
], False)
sketch13.addConstraint([
    Sketcher.Constraint("Coincident", 1, 3, 0, 3),
    Sketcher.Constraint("Diameter", 0, 4.0),
    Sketcher.Constraint("Diameter", 1, 2.0),
    Sketcher.Constraint("DistanceY", -1, 1, 0, 3, 19.0),
    Sketcher.Constraint("DistanceX", 0, 3, -1, 1, 55.6),
])
pad11 = doc.addObject("PartDesign::Pad", "Pad010")
body.addObject(pad11)
pad11.Profile = sketch13
pad11.Length = 5
doc.recompute()

mirrored5 = doc.addObject("PartDesign::Mirrored", "Mirrored004")
body.addObject(mirrored5)
mirrored5.Originals = [pad11]
mirrored5.MirrorPlane = (doc.YZ_Plane, [""])
body.Tip = mirrored5

sketch14 = doc.addObject("Sketcher::SketchObject", "Sketch013")
body.addObject(sketch14)
sketch14.AttachmentSupport = (doc.XY_Plane, [""])
sketch14.MapMode = "FlatFace"
sketch14.AttachmentOffset = App.Placement(V(0, 0, 5), App.Rotation())
sketch14.addGeometry([
    Part.Circle(V(-62.8, 50.9, 0), V(0, 0, 1), 2),
    Part.Circle(V(62.8, 50.9, 0), V(0, 0, 1), 2),
], False)
sketch14.addConstraint([
    Sketcher.Constraint("Equal", 0, 1),
    Sketcher.Constraint("Symmetric", 0, 3, 1, 3, -2),
    Sketcher.Constraint("Diameter", 0, 4.0),
    Sketcher.Constraint("DistanceX", 0, 3, 1, 3, 125.53),
    Sketcher.Constraint("DistanceY", -1, 1, 0, 3, 50.928),
])
pad12 = doc.addObject("PartDesign::Pad", "Pad011")
body.addObject(pad12)
pad12.Profile = sketch14
pad12.Length = 5

sketch15 = doc.addObject("Sketcher::SketchObject", "Sketch014")
body.addObject(sketch15)
sketch15.AttachmentSupport = (doc.XY_Plane, [""])
sketch15.MapMode = "FlatFace"
sketch15.AttachmentOffset = App.Placement(V(0, 0, 10), App.Rotation())
sketch15.addGeometry(Part.Circle(V(-62.8, 50.9, 0), V(0, 0, 1), 1), False)
sketch15.addConstraint([
    Sketcher.Constraint("Diameter", 0, 2.0),
    Sketcher.Constraint("DistanceX", 0, 3, -1, 1, 62.765),
    Sketcher.Constraint("DistanceY", -1, 1, 0, 3, 50.928),
])
pad13 = doc.addObject("PartDesign::Pad", "Pad012")
body.addObject(pad13)
pad13.Profile = sketch15
pad13.Length = 5
doc.recompute()

mirrored6 = doc.addObject("PartDesign::Mirrored", "Mirrored005")
body.addObject(mirrored6)
mirrored6.Originals = [pad13]
mirrored6.MirrorPlane = (doc.YZ_Plane, [""])
body.Tip = mirrored6

sketch16 = doc.addObject("Sketcher::SketchObject", "Sketch015")
body.addObject(sketch16)
sketch16.AttachmentSupport = (doc.XY_Plane, [""])
sketch16.MapMode = "FlatFace"
add_polygon(sketch16, [(64.6, 52.9), (65.6, 52.9), (65.6, 48.9), (64.6, 48.9)])
add_polygon(sketch16, [(61.6, 52.9), (62.6, 52.9), (62.6, 48.9), (61.6, 48.9)])
sketch16.addConstraint([
    Sketcher.Constraint("Horizontal", 0),
    Sketcher.Constraint("Vertical", 1),
    Sketcher.Constraint("Horizontal", 2),
    Sketcher.Constraint("Vertical", 3),
    Sketcher.Constraint("Horizontal", 4),
    Sketcher.Constraint("Vertical", 5),
    Sketcher.Constraint("Horizontal", 6),
    Sketcher.Constraint("Vertical", 7),
    Sketcher.Constraint("Horizontal", 3, 2, 4, 2),
    Sketcher.Constraint("Horizontal", 2, 2, 5, 2),
    Sketcher.Constraint("Equal", 2, 4),
    Sketcher.Constraint("DistanceX", 0, 1, 0, 2, 1.0),
    Sketcher.Constraint("DistanceY", 1, 2, 1, 1, 4.0),
    Sketcher.Constraint("DistanceX", 4, 2, 3, 2, 2.0),
    Sketcher.Constraint("DistanceX", -1, 1, 0, 2, 65.6),
    Sketcher.Constraint("DistanceY", -1, 1, 0, 2, 52.928),
])
pad14 = doc.addObject("PartDesign::Pad", "Pad013")
body.addObject(pad14)
pad14.Profile = sketch16
pad14.Length = 15
pad14.Reversed = True
doc.recompute()

mirrored7 = doc.addObject("PartDesign::Mirrored", "Mirrored006")
body.addObject(mirrored7)
mirrored7.Originals = [pad14]
mirrored7.MirrorPlane = (doc.YZ_Plane, [""])
body.Tip = mirrored7

sketch17 = doc.addObject("Sketcher::SketchObject", "Sketch016")
body.addObject(sketch17)
sketch17.AttachmentSupport = (doc.XZ_Plane, [""])
sketch17.MapMode = "FlatFace"
sketch17.AttachmentOffset = App.Placement(V(0, 0, -61), App.Rotation())
add_polygon(sketch17, [(-73, -15), (-73, 5), (-68, 5), (-68, -15)])
add_polygon(sketch17, [(68, -15), (68, 5), (73, 5), (73, -15)])
sketch17.addConstraint([
    Sketcher.Constraint("Vertical", 0),
    Sketcher.Constraint("Horizontal", 1),
    Sketcher.Constraint("Vertical", 2),
    Sketcher.Constraint("Horizontal", 3),
    Sketcher.Constraint("Vertical", 4),
    Sketcher.Constraint("Horizontal", 5),
    Sketcher.Constraint("Vertical", 6),
    Sketcher.Constraint("Horizontal", 7),
    Sketcher.Constraint("Symmetric", 1, 2, 4, 2, -2),
    Sketcher.Constraint("Symmetric", 3, 2, 6, 2, -2),
    Sketcher.Constraint("DistanceX", 1, 1, 1, 2, 5.0),
    Sketcher.Constraint("DistanceY", 0, 1, 0, 2, 20.0),
    Sketcher.Constraint("DistanceY", -1, 1, 0, 2, 5.0),
    Sketcher.Constraint("DistanceX", 0, 2, -1, 1, 72.6),
])
pocket3 = doc.addObject("PartDesign::Pocket", "Pocket002")
body.addObject(pocket3)
pocket3.Profile = sketch17
pocket3.Length = 8.072
pocket3.Reversed = True

sketch18 = doc.addObject("Sketcher::SketchObject", "Sketch017")
body.addObject(sketch18)
sketch18.AttachmentSupport = (doc.XY_Plane, [""])
sketch18.MapMode = "FlatFace"
sketch18.AttachmentOffset = App.Placement(V(0, 0, 5), App.Rotation())
add_polygon(sketch18, [(-72.6, 21), (-72.6, 17), (-53.6, 17), (-53.6, 21)])
add_polygon(sketch18, [(-72.6, 52.9), (-72.6, 48.9), (-60.6, 48.9), (-60.6, 52.9)])
add_polygon(sketch18, [(72.6, 21), (53.6, 21), (53.6, 17), (72.6, 17)])
add_polygon(sketch18, [(72.6, 52.9), (60.6, 52.9), (60.6, 48.9), (72.6, 48.9)])
sketch18.addConstraint([
    Sketcher.Constraint("Vertical", 0),
    Sketcher.Constraint("Horizontal", 1),
    Sketcher.Constraint("Vertical", 2),
    Sketcher.Constraint("Horizontal", 3),
    Sketcher.Constraint("Vertical", 4),
    Sketcher.Constraint("Horizontal", 5),
    Sketcher.Constraint("Vertical", 6),
    Sketcher.Constraint("Horizontal", 7),
    Sketcher.Constraint("Horizontal", 8),
    Sketcher.Constraint("Vertical", 9),
    Sketcher.Constraint("Horizontal", 10),
    Sketcher.Constraint("Vertical", 11),
    Sketcher.Constraint("Horizontal", 12),
    Sketcher.Constraint("Vertical", 13),
    Sketcher.Constraint("Horizontal", 14),
    Sketcher.Constraint("Vertical", 15),
    Sketcher.Constraint("Symmetric", 2, 2, 8, 2, -2),
    Sketcher.Constraint("Symmetric", 0, 2, 10, 2, -2),
    Sketcher.Constraint("Symmetric", 6, 2, 12, 2, -2),
    Sketcher.Constraint("Symmetric", 4, 2, 14, 2, -2),
    Sketcher.Constraint("Vertical", 3, 2, 4, 2),
    Sketcher.Constraint("Equal", 2, 4),
    Sketcher.Constraint("DistanceX", 1, 1, 1, 2, 19.0),
    Sketcher.Constraint("DistanceX", 5, 1, 5, 2, 12.0),
    Sketcher.Constraint("DistanceY", 0, 2, 0, 1, 4.0),
    Sketcher.Constraint("DistanceY", -1, 1, 0, 2, 17.0),
    Sketcher.Constraint("DistanceX", 0, 2, -1, 1, 72.6),
    Sketcher.Constraint("DistanceY", -1, 1, 4, 2, 48.928),
])
pad15 = doc.addObject("PartDesign::Pad", "Pad014")
body.addObject(pad15)
pad15.Profile = sketch18
pad15.Length = 5

doc.recompute()
